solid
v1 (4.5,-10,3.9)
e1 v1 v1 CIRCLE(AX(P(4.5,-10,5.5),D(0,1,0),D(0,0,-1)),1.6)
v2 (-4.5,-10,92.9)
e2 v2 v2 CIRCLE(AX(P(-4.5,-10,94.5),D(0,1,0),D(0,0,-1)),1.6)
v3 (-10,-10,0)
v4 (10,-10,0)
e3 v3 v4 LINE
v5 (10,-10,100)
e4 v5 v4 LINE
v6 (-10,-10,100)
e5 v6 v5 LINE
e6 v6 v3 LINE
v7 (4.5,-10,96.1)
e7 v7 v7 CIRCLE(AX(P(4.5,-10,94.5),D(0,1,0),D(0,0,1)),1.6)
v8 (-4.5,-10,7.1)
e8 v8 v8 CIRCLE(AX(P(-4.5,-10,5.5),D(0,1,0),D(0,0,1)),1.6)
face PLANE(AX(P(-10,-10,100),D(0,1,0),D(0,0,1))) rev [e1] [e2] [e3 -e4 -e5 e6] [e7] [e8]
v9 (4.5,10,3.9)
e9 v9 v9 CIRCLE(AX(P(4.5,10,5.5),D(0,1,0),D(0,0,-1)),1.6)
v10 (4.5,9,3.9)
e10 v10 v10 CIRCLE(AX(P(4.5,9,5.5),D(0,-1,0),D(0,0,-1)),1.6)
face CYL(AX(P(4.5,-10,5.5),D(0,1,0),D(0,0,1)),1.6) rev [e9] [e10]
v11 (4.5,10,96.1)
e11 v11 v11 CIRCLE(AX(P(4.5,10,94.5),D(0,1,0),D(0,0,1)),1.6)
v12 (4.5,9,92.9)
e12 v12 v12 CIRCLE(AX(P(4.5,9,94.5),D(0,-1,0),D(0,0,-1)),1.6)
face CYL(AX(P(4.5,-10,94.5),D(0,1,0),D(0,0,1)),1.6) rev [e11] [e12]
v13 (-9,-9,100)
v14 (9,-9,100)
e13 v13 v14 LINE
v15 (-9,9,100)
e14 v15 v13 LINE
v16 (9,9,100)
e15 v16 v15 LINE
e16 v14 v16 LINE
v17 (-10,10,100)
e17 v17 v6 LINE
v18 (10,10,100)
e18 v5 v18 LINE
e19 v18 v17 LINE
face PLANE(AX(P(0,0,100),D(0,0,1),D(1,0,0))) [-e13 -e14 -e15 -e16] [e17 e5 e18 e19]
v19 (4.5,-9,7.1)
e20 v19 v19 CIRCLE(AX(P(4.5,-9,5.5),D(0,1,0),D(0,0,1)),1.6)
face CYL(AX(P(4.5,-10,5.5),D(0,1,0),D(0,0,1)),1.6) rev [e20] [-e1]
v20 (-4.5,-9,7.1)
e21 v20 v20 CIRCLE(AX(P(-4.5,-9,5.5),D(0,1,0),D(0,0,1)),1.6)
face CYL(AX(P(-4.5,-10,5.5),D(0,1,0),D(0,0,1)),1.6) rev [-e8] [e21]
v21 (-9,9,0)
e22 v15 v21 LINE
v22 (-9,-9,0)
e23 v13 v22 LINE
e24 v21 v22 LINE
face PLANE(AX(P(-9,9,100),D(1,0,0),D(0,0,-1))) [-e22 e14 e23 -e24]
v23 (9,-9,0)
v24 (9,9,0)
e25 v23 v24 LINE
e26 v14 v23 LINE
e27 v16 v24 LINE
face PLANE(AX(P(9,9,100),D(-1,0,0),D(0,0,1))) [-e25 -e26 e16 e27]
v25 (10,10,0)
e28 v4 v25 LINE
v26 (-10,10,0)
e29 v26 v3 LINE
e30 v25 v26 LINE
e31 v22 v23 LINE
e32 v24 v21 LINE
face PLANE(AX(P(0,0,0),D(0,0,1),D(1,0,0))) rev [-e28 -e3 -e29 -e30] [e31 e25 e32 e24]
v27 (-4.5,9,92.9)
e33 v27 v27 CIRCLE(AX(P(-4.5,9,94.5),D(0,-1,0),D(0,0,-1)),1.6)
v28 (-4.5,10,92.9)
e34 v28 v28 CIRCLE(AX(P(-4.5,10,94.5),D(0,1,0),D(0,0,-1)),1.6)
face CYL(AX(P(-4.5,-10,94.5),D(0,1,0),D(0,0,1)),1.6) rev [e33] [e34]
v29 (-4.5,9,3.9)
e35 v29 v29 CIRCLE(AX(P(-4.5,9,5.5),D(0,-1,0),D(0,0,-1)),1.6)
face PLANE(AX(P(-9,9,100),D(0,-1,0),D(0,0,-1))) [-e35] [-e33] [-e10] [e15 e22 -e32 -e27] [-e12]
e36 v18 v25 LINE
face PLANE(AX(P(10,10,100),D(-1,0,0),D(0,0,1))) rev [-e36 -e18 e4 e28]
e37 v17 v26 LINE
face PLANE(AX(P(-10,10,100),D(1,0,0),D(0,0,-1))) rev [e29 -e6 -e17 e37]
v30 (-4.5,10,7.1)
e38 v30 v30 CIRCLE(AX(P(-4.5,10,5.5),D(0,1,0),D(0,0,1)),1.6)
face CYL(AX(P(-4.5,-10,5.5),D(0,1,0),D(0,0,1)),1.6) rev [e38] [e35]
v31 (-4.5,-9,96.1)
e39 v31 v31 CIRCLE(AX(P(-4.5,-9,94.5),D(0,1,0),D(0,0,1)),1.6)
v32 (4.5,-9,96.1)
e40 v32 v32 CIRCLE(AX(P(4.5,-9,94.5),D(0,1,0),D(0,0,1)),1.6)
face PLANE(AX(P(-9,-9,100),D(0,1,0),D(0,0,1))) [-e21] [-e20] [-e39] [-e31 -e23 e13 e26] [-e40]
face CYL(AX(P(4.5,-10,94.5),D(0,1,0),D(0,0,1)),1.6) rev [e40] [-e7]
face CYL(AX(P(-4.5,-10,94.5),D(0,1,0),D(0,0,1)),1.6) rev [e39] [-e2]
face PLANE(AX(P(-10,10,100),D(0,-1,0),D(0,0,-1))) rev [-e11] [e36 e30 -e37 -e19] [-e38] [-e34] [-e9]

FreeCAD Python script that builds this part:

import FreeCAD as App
import Part
import Sketcher
from FreeCAD import Vector

doc = App.newDocument("Part")
body = doc.addObject("PartDesign::Body", "Body")

# Sketch on XY plane
sketch1 = body.newObject("Sketcher::SketchObject", "Sketch")
sketch1.AttachmentSupport = (doc.getObject("XY_Plane"), [""])
sketch1.MapMode = "FlatFace"
sketch1.addGeometry(Part.LineSegment(Vector(-10, 10, 0), Vector(-10, -10, 0)), False)
sketch1.addGeometry(Part.LineSegment(Vector(-10, -10, 0), Vector(10, -10, 0)), False)
sketch1.addGeometry(Part.LineSegment(Vector(10, -10, 0), Vector(10, 10, 0)), False)
sketch1.addGeometry(Part.LineSegment(Vector(10, 10, 0), Vector(-10, 10, 0)), False)
sketch1.addGeometry(Part.LineSegment(Vector(9, -9, 0), Vector(-9, -9, 0)), False)
sketch1.addGeometry(Part.LineSegment(Vector(-9, -9, 0), Vector(-9, 9, 0)), False)
sketch1.addGeometry(Part.LineSegment(Vector(-9, 9, 0), Vector(9, 9, 0)), False)
sketch1.addGeometry(Part.LineSegment(Vector(9, 9, 0), Vector(9, -9, 0)), False)
sketch1.addConstraint(Sketcher.Constraint("Coincident", 0, 2, 1, 1))
sketch1.addConstraint(Sketcher.Constraint("Coincident", 1, 2, 2, 1))
sketch1.addConstraint(Sketcher.Constraint("Coincident", 2, 2, 3, 1))
sketch1.addConstraint(Sketcher.Constraint("Coincident", 3, 2, 0, 1))
sketch1.addConstraint(Sketcher.Constraint("Coincident", 4, 2, 5, 1))
sketch1.addConstraint(Sketcher.Constraint("Coincident", 5, 2, 6, 1))
sketch1.addConstraint(Sketcher.Constraint("Coincident", 6, 2, 7, 1))
sketch1.addConstraint(Sketcher.Constraint("Coincident", 7, 2, 4, 1))
sketch1.addConstraint(Sketcher.Constraint("Vertical", 0))
sketch1.addConstraint(Sketcher.Constraint("Horizontal", 1))
sketch1.addConstraint(Sketcher.Constraint("Vertical", 2))
sketch1.addConstraint(Sketcher.Constraint("Horizontal", 3))
sketch1.addConstraint(Sketcher.Constraint("Horizontal", 4))
sketch1.addConstraint(Sketcher.Constraint("Vertical", 5))
sketch1.addConstraint(Sketcher.Constraint("Horizontal", 6))
sketch1.addConstraint(Sketcher.Constraint("Vertical", 7))
sketch1.addConstraint(Sketcher.Constraint("Symmetric", 0, 2, 2, 2, -1, 1))
sketch1.addConstraint(Sketcher.Constraint("Symmetric", 4, 2, 6, 2, -1, 1))
sketch1.addConstraint(Sketcher.Constraint("Equal", 3, 0))
sketch1.addConstraint(Sketcher.Constraint("Equal", 6, 5))
sketch1.addConstraint(Sketcher.Constraint("DistanceX", 1, 1, 1, 2, 20.0))
sketch1.addConstraint(Sketcher.Constraint("DistanceX", 4, 2, 4, 1, 18.0))
pad1 = body.newObject("PartDesign::Pad", "Pad")
pad1.Profile = sketch1
pad1.Length = 100

# Sketch on XZ plane
sketch2 = body.newObject("Sketcher::SketchObject", "Sketch001")
sketch2.AttachmentSupport = (doc.getObject("XZ_Plane"), [""])
sketch2.MapMode = "FlatFace"
sketch2.AttachmentOffset = App.Placement(Vector(0, 0, -10), App.Rotation())
sketch2.addGeometry(Part.Circle(Vector(4.5, 94.5, 0), Vector(0, 0, 1), 1.6), False)
sketch2.addGeometry(Part.Circle(Vector(-4.5, 94.5, 0), Vector(0, 0, 1), 1.6), False)
sketch2.addGeometry(Part.Circle(Vector(-4.5, 5.5, 0), Vector(0, 0, 1), 1.6), False)
sketch2.addGeometry(Part.Circle(Vector(4.5, 5.5, 0), Vector(0, 0, 1), 1.6), False)
sketch2.addConstraint(Sketcher.Constraint("Equal", 0, 1))
sketch2.addConstraint(Sketcher.Constraint("Equal", 1, 2))
sketch2.addConstraint(Sketcher.Constraint("Equal", 2, 3))
sketch2.addConstraint(Sketcher.Constraint("Symmetric", 0, 3, 1, 3, -2))
sketch2.addConstraint(Sketcher.Constraint("Symmetric", 2, 3, 3, 3, -2))
sketch2.addConstraint(Sketcher.Constraint("Vertical", 1, 3, 2, 3))
sketch2.addConstraint(Sketcher.Constraint("Diameter", 0, 3.2))
sketch2.addConstraint(Sketcher.Constraint("DistanceX", 1, 3, 0, 3, 9.0))
sketch2.addConstraint(Sketcher.Constraint("DistanceY", 2, 3, 1, 3, 89.0))
sketch2.addConstraint(Sketcher.Constraint("DistanceY", -1, 1, 0, 3, 94.5))
pocket1 = body.newObject("PartDesign::Pocket", "Pocket")
pocket1.Profile = sketch2
pocket1.Type = "ThroughAll"
pocket1.Reversed = True

doc.recompute()
